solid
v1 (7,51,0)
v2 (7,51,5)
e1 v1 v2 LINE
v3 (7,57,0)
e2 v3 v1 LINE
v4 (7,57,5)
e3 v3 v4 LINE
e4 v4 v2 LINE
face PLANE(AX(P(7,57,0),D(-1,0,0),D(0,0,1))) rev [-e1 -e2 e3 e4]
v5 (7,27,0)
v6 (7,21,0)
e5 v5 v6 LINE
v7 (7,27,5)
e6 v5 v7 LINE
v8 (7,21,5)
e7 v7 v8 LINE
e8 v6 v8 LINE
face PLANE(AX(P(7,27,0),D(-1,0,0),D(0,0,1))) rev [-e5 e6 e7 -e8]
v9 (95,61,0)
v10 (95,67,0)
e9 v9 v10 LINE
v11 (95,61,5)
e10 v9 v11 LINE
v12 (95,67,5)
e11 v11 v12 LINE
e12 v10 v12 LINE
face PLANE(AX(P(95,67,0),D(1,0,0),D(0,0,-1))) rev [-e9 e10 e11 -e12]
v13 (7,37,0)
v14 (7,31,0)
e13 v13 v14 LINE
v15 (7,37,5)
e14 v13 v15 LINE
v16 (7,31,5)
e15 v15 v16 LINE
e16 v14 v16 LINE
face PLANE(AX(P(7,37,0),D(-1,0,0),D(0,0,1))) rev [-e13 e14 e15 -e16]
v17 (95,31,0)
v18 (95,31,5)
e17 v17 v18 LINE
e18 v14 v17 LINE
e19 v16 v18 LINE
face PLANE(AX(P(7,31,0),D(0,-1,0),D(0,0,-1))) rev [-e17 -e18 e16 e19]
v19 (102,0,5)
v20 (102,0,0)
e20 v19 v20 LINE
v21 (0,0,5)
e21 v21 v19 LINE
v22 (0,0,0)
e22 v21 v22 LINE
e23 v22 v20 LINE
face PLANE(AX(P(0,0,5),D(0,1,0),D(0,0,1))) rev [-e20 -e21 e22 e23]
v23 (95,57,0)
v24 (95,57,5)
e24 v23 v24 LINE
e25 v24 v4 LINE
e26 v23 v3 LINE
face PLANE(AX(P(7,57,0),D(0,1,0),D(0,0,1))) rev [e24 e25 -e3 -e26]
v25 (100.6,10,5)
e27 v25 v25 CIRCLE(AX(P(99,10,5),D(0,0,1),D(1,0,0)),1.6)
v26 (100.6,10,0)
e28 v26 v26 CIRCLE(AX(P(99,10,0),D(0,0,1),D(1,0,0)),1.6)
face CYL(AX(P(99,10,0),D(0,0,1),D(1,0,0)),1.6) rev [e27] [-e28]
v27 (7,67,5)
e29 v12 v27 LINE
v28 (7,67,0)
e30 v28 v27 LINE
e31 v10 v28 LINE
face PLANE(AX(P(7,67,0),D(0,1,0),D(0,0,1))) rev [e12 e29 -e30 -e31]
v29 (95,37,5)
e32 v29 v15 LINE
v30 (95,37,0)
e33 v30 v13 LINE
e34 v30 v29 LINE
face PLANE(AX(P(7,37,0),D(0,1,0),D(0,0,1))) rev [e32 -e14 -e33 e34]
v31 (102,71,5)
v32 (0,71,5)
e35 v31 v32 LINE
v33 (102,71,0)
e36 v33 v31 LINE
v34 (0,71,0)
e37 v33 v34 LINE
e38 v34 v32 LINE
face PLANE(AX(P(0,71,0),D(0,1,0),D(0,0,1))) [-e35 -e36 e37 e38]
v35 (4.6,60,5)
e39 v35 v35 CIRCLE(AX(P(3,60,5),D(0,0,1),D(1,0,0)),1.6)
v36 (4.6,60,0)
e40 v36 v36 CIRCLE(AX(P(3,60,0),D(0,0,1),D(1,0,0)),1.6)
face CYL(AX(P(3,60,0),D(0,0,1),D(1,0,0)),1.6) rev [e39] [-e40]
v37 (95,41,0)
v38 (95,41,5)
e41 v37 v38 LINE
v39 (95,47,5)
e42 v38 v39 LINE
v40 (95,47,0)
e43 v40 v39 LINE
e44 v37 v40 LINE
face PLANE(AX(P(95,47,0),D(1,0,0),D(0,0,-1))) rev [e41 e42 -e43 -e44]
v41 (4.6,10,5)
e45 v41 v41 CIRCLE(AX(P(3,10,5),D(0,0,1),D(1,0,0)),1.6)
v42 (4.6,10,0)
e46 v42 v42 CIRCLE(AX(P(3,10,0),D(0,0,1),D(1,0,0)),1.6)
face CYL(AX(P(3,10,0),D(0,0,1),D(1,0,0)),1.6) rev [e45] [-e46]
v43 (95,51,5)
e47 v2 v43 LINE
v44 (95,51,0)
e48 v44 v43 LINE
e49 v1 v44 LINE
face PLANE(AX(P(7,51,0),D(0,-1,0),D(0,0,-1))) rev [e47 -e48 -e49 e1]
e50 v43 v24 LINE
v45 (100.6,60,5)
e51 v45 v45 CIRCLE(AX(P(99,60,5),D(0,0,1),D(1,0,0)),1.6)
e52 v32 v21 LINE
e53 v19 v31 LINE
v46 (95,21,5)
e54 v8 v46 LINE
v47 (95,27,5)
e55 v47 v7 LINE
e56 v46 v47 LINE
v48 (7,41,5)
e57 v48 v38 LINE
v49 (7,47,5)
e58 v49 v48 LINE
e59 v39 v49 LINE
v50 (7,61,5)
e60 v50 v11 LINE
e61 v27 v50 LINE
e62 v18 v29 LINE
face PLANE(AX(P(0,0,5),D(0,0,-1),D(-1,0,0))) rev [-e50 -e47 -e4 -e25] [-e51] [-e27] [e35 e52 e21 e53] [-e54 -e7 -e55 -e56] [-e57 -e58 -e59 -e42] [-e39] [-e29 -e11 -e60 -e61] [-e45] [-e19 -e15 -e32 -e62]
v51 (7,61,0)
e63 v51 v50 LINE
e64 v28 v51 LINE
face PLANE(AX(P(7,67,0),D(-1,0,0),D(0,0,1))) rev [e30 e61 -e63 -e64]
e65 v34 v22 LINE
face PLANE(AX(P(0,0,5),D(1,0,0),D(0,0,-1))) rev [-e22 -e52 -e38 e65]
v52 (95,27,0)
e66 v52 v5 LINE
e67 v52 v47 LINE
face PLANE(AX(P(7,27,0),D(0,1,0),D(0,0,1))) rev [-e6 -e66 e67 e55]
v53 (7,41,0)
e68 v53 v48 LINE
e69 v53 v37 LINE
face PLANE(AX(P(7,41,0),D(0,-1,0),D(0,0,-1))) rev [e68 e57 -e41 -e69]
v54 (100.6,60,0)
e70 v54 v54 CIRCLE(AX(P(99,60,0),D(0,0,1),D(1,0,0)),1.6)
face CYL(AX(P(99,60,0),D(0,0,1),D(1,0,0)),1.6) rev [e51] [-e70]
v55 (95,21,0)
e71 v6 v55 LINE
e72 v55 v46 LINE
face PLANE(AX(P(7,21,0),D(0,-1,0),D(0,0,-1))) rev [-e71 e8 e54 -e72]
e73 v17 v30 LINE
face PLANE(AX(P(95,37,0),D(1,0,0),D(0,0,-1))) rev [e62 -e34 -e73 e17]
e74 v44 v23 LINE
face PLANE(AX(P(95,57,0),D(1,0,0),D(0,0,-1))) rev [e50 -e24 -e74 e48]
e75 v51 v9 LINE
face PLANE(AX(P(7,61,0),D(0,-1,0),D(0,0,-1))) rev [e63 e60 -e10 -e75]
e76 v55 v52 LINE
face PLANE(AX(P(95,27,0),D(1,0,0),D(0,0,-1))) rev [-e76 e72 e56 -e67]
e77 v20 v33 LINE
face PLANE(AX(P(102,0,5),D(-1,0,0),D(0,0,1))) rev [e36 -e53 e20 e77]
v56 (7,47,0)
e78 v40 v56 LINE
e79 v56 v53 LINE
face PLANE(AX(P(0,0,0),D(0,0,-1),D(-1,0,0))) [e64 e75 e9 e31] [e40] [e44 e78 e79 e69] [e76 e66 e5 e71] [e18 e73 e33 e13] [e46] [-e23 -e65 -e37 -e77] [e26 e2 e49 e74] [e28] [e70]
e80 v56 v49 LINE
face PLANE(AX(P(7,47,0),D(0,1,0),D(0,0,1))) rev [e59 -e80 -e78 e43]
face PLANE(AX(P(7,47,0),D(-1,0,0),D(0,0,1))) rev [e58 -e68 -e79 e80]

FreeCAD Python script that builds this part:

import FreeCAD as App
import Part
import Sketcher

doc = App.newDocument("Part")
body = doc.addObject("PartDesign::Body", "Body")

# Sketch on XY plane
sketch1 = body.newObject("Sketcher::SketchObject", "Sketch")
sketch1.AttachmentSupport = (doc.getObject("XY_Plane"), [""])
sketch1.MapMode = "FlatFace"
sketch1.addGeometry([
    Part.LineSegment(App.Vector(0, 65, 0), App.Vector(0, 0, 0)),
    Part.LineSegment(App.Vector(0, 0, 0), App.Vector(102, 0, 0)),
    Part.LineSegment(App.Vector(102, 0, 0), App.Vector(102, 65, 0)),
    Part.LineSegment(App.Vector(102, 65, 0), App.Vector(0, 65, 0)),
], False)
sketch1.addConstraint([
    Sketcher.Constraint("Coincident", 0, 2, 1, 1),
    Sketcher.Constraint("Coincident", 1, 2, 2, 1),
    Sketcher.Constraint("Coincident", 2, 2, 3, 1),
    Sketcher.Constraint("Coincident", 3, 2, 0, 1),
    Sketcher.Constraint("Vertical", 0),
    Sketcher.Constraint("Horizontal", 1),
    Sketcher.Constraint("Vertical", 2),
    Sketcher.Constraint("Horizontal", 3),
    Sketcher.Constraint("Coincident", 0, 2, -1, 1),
    Sketcher.Constraint("DistanceX", 1, 1, 1, 2, 102.0),
    Sketcher.Constraint("DistanceY", 0, 2, 0, 1, 65.0),
])
pad1 = body.newObject("PartDesign::Pad", "Pad")
pad1.Profile = sketch1
pad1.Length = 5

# Sketch on XY plane
sketch2 = body.newObject("Sketcher::SketchObject", "Sketch001")
sketch2.AttachmentSupport = (doc.getObject("XY_Plane"), [""])
sketch2.MapMode = "FlatFace"
sketch2.AttachmentOffset = App.Placement(App.Vector(0, 0, 5), App.Rotation())
sketch2.addGeometry([
    Part.Circle(App.Vector(3, 60, 0), App.Vector(0, 0, 1), 1.6),
    Part.Circle(App.Vector(99, 10, 0), App.Vector(0, 0, 1), 1.6),
    Part.Circle(App.Vector(3, 10, 0), App.Vector(0, 0, 1), 1.6),
    Part.Circle(App.Vector(99, 60, 0), App.Vector(0, 0, 1), 1.6),
], False)
sketch2.addConstraint([
    Sketcher.Constraint("Equal", 0, 1),
    Sketcher.Constraint("Equal", 1, 2),
    Sketcher.Constraint("Equal", 2, 3),
    Sketcher.Constraint("Horizontal", 1, 3, 2, 3),
    Sketcher.Constraint("Horizontal", 0, 3, 3, 3),
    Sketcher.Constraint("Vertical", 0, 3, 2, 3),
    Sketcher.Constraint("Vertical", 1, 3, 3, 3),
    Sketcher.Constraint("Diameter", 0, 3.2),
    Sketcher.Constraint("DistanceX", -1, 1, 0, 3, 3.0),
    Sketcher.Constraint("DistanceY", -1, 1, 0, 3, 60.0),
    Sketcher.Constraint("DistanceX", -1, 1, 1, 3, 99.0),
    Sketcher.Constraint("DistanceY", -1, 1, 1, 3, 10.0),
])
pocket1 = body.newObject("PartDesign::Pocket", "Pocket")
pocket1.Profile = sketch2
pocket1.Type = "ThroughAll"

# Sketch on XY plane
sketch3 = body.newObject("Sketcher::SketchObject", "Sketch002")
sketch3.AttachmentSupport = (doc.getObject("XY_Plane"), [""])
sketch3.MapMode = "FlatFace"
sketch3.AttachmentOffset = App.Placement(App.Vector(0, 0, 5), App.Rotation())
sketch3.addGeometry([
    Part.LineSegment(App.Vector(0, 71, 0), App.Vector(0, 65, 0)),
    Part.LineSegment(App.Vector(0, 65, 0), App.Vector(102, 65, 0)),
    Part.LineSegment(App.Vector(102, 65, 0), App.Vector(102, 71, 0)),
    Part.LineSegment(App.Vector(102, 71, 0), App.Vector(0, 71, 0)),
], False)
sketch3.addConstraint([
    Sketcher.Constraint("Coincident", 0, 2, 1, 1),
    Sketcher.Constraint("Coincident", 1, 2, 2, 1),
    Sketcher.Constraint("Coincident", 2, 2, 3, 1),
    Sketcher.Constraint("Coincident", 3, 2, 0, 1),
    Sketcher.Constraint("Vertical", 0),
    Sketcher.Constraint("Horizontal", 1),
    Sketcher.Constraint("Vertical", 2),
    Sketcher.Constraint("Horizontal", 3),
    Sketcher.Constraint("PointOnObject", 0, 2, -2),
    Sketcher.Constraint("DistanceX", 1, 1, 1, 2, 102.0),
    Sketcher.Constraint("DistanceY", 0, 2, 0, 1, 6.0),
    Sketcher.Constraint("DistanceY", -1, 1, 0, 2, 65.0),
])
pad2 = body.newObject("PartDesign::Pad", "Pad001")
pad2.Profile = sketch3
pad2.Length = 5
pad2.Reversed = True

# Sketch on XY plane
sketch4 = body.newObject("Sketcher::SketchObject", "Sketch003")
sketch4.AttachmentSupport = (doc.getObject("XY_Plane"), [""])
sketch4.MapMode = "FlatFace"
sketch4.AttachmentOffset = App.Placement(App.Vector(0, 0, 5), App.Rotation())
sketch4.addGeometry([
    Part.LineSegment(App.Vector(7, 67, 0), App.Vector(7, 61, 0)),
    Part.LineSegment(App.Vector(7, 61, 0), App.Vector(95, 61, 0)),
    Part.LineSegment(App.Vector(95, 61, 0), App.Vector(95, 67, 0)),
    Part.LineSegment(App.Vector(95, 67, 0), App.Vector(7, 67, 0)),
], False)
sketch4.addConstraint([
    Sketcher.Constraint("Coincident", 0, 2, 1, 1),
    Sketcher.Constraint("Coincident", 1, 2, 2, 1),
    Sketcher.Constraint("Coincident", 2, 2, 3, 1),
    Sketcher.Constraint("Coincident", 3, 2, 0, 1),
    Sketcher.Constraint("Vertical", 0),
    Sketcher.Constraint("Horizontal", 1),
    Sketcher.Constraint("Vertical", 2),
    Sketcher.Constraint("Horizontal", 3),
    Sketcher.Constraint("DistanceX", 1, 1, 1, 2, 88.0),
    Sketcher.Constraint("DistanceY", 0, 2, 0, 1, 6.0),
    Sketcher.Constraint("DistanceX", -1, 1, 0, 2, 7.0),
    Sketcher.Constraint("DistanceY", -1, 1, 0, 2, 61.0),
])
pocket2 = body.newObject("PartDesign::Pocket", "Pocket001")
pocket2.Profile = sketch4
pocket2.Type = "ThroughAll"
doc.recompute()

linearpattern = body.newObject("PartDesign::LinearPattern", "LinearPattern")
linearpattern.Originals = [pocket2]
linearpattern.Direction = (doc.getObject("Y_Axis"), [""])
linearpattern.Mode = "offset"
linearpattern.Offset = 10
linearpattern.Occurrences = 5
linearpattern.Reversed = True
body.Tip = linearpattern

doc.recompute()
